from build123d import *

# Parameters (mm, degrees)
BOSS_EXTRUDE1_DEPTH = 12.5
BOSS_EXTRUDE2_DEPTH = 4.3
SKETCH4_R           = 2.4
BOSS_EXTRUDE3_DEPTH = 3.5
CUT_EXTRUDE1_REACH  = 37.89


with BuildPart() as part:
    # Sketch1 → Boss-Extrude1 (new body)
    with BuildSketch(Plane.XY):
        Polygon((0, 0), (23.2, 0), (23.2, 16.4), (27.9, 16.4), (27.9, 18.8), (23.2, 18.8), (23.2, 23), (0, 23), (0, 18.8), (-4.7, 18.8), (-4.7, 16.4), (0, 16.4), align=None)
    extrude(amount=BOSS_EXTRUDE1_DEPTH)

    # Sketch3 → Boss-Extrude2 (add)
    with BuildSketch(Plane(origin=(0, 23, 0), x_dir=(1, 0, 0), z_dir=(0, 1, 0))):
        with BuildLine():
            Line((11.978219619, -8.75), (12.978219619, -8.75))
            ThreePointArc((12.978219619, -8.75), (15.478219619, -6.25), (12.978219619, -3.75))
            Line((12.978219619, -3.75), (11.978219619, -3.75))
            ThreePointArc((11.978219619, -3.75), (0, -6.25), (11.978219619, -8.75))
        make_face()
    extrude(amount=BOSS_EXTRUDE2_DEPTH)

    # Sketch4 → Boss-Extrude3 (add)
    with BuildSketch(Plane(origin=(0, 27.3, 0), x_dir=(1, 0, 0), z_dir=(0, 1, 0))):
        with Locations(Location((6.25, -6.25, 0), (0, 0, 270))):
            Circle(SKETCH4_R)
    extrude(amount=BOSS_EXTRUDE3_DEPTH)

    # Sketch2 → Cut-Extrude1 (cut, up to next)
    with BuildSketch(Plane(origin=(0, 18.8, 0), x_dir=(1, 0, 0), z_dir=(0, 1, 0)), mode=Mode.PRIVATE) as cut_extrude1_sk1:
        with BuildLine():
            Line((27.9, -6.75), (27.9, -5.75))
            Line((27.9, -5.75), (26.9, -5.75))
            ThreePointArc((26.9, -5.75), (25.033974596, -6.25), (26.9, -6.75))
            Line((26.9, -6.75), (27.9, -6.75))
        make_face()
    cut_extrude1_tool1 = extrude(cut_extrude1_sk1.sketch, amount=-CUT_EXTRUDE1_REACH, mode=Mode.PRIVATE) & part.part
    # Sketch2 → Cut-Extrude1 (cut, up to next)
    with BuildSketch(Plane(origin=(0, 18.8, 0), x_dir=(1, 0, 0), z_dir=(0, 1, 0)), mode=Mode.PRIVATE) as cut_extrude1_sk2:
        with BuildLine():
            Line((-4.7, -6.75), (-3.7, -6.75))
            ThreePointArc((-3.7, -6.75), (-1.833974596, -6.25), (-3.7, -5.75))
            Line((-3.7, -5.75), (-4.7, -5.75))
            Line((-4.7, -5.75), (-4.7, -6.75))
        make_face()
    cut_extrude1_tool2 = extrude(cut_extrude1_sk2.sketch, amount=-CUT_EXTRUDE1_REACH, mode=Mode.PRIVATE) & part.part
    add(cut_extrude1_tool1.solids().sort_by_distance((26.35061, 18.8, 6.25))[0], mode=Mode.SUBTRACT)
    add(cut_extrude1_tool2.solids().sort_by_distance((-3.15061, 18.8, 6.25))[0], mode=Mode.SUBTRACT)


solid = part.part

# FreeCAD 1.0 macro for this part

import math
import FreeCAD as App
import Part
import Sketcher
from FreeCAD import Vector


def add_polygon(sketch, points):
    """Adds a closed chain of lines whose ends are joined by coincident constraints."""
    first, n = sketch.GeometryCount, len(points)
    for a, b in zip(points, points[1:] + points[:1]):
        sketch.addGeometry(Part.LineSegment(App.Vector(*a, 0), App.Vector(*b, 0)), False)
    for i in range(n):
        sketch.addConstraint(Sketcher.Constraint("Coincident", first + i, 2, first + (i + 1) % n, 1))

doc = App.newDocument("Part")
params = doc.addObject("Spreadsheet::Sheet", "Params")
for row, (alias, value) in enumerate([
    ("sketch1_width", "23.2 mm"),
    ("sketch1_width2", "4.7 mm"),
    ("sketch1_height", "16.4 mm"),
    ("sketch1_height2", "2.4 mm"),
    ("sketch1_height3", "4.2 mm"),
    ("pad1_length", "12.5 mm"),
    ("sketch2_radius", "2.5 mm"),
    ("sketch2_width", "1 mm"),
    ("sketch2_radius2", "6.25 mm"),
    ("pad2_length", "4.3 mm"),
    ("sketch3_diameter", "4.8 mm"),
    ("pad3_length", "3.5 mm"),
    ("sketch4_radius", "1 mm"),
    ("sketch4_width", "1 mm"),
    ("sketch5_radius", "1 mm"),
    ("sketch5_width", "1 mm"),
], start=1):
    params.set(f"A{row}", alias)
    params.set(f"B{row}", "=" + value)
    params.setAlias(f"B{row}", alias)

body = doc.addObject("PartDesign::Body", "Body")

sketch1 = body.newObject("Sketcher::SketchObject", "Sketch")
sketch1.AttachmentSupport = (doc.getObject("XY_Plane"), [""])
sketch1.MapMode = "FlatFace"
add_polygon(sketch1, [(0, 0), (23.2, 0), (23.2, 16.4), (27.9, 16.4), (27.9, 18.8), (23.2, 18.8), (23.2, 23), (0, 23), (0, 18.8), (-4.7, 18.8), (-4.7, 16.4), (0, 16.4)])
sketch1.addConstraint(Sketcher.Constraint("Horizontal", 0))
sketch1.addConstraint(Sketcher.Constraint("Vertical", 1))
sketch1.addConstraint(Sketcher.Constraint("Horizontal", 2))
sketch1.addConstraint(Sketcher.Constraint("Vertical", 3))
sketch1.addConstraint(Sketcher.Constraint("Horizontal", 4))
sketch1.addConstraint(Sketcher.Constraint("Vertical", 5))
sketch1.addConstraint(Sketcher.Constraint("Horizontal", 6))
sketch1.addConstraint(Sketcher.Constraint("Vertical", 7))
sketch1.addConstraint(Sketcher.Constraint("Horizontal", 8))
sketch1.addConstraint(Sketcher.Constraint("Vertical", 9))
sketch1.addConstraint(Sketcher.Constraint("Horizontal", 10))
sketch1.addConstraint(Sketcher.Constraint("Vertical", 11))
sketch1.addConstraint(Sketcher.Constraint("Coincident", 11, 2, -1, 1))
sketch1.addConstraint(Sketcher.Constraint("PointOnObject", 6, 2, -2))
sketch1.addConstraint(Sketcher.Constraint("Horizontal", 4, 2, 7, 2))
sketch1.addConstraint(Sketcher.Constraint("Horizontal", 2, 2, 9, 2))
sketch1.addConstraint(Sketcher.Constraint("Vertical", 1, 2, 4, 2))
sketch1.addConstraint(Sketcher.Constraint("Equal", 4, 8))
sketch1.addConstraint(Sketcher.Constraint("DistanceX", 0, 1, 0, 2, 23.2))
sketch1.addConstraint(Sketcher.Constraint("DistanceX", 2, 1, 2, 2, 4.7))
sketch1.addConstraint(Sketcher.Constraint("DistanceY", 1, 1, 1, 2, 16.4))
sketch1.addConstraint(Sketcher.Constraint("DistanceY", 3, 1, 3, 2, 2.4))
sketch1.addConstraint(Sketcher.Constraint("DistanceY", 5, 1, 5, 2, 4.2))
sketch1.setExpression("Constraints[30]", "Params.sketch1_width")
sketch1.setExpression("Constraints[31]", "Params.sketch1_width2")
sketch1.setExpression("Constraints[32]", "Params.sketch1_height")
sketch1.setExpression("Constraints[33]", "Params.sketch1_height2")
sketch1.setExpression("Constraints[34]", "Params.sketch1_height3")
pad1 = body.newObject("PartDesign::Pad", "Pad")
pad1.Profile = sketch1
pad1.setExpression("Length", "Params.pad1_length")

sketch2 = body.newObject("Sketcher::SketchObject", "Sketch001")
sketch2.AttachmentSupport = (doc.getObject("XZ_Plane"), [""])
sketch2.MapMode = "FlatFace"
sketch2.AttachmentOffset = App.Placement(Vector(0, 0, -23), App.Rotation())
sketch2.addGeometry(Part.LineSegment(Vector(12, 8.8, 0), Vector(13, 8.8, 0)), False)
sketch2.addGeometry(Part.ArcOfCircle(Part.Circle(Vector(13, 6.2, 0), Vector(0, 0, 1), 2.5), math.radians(-90), math.radians(90)), False)
sketch2.addGeometry(Part.LineSegment(Vector(13, 3.8, 0), Vector(12, 3.8, 0)), False)
sketch2.addGeometry(Part.ArcOfCircle(Part.Circle(Vector(6.2, 6.2, 0), Vector(0, 0, 1), 6.2), math.radians(24), math.radians(336)), False)
sketch2.addConstraint(Sketcher.Constraint("Tangent", 0, 2, 1, 2))
sketch2.addConstraint(Sketcher.Constraint("Tangent", 1, 1, 2, 1))
sketch2.addConstraint(Sketcher.Constraint("Coincident", 2, 2, 3, 2))
sketch2.addConstraint(Sketcher.Constraint("Coincident", 3, 1, 0, 1))
sketch2.addConstraint(Sketcher.Constraint("Horizontal", 0))
sketch2.addConstraint(Sketcher.Constraint("Horizontal", 2))
sketch2.addConstraint(Sketcher.Constraint("Horizontal", 1, 3, 3, 3))
sketch2.addConstraint(Sketcher.Constraint("Radius", 1, 2.5))
sketch2.addConstraint(Sketcher.Constraint("DistanceX", 0, 1, 0, 2, 1.0))
sketch2.addConstraint(Sketcher.Constraint("Radius", 3, 6.25))
sketch2.addConstraint(Sketcher.Constraint("DistanceY", -1, 1, 1, 3, 6.25))
sketch2.addConstraint(Sketcher.Constraint("DistanceX", -1, 1, 3, 3, 6.25))
sketch2.setExpression("Constraints[7]", "Params.sketch2_radius")
sketch2.setExpression("Constraints[8]", "Params.sketch2_width")
sketch2.setExpression("Constraints[9]", "Params.sketch2_radius2")
pad2 = body.newObject("PartDesign::Pad", "Pad001")
pad2.Profile = sketch2
pad2.setExpression("Length", "Params.pad2_length")
pad2.Reversed = True

sketch3 = body.newObject("Sketcher::SketchObject", "Sketch002")
sketch3.AttachmentSupport = (doc.getObject("XZ_Plane"), [""])
sketch3.MapMode = "FlatFace"
sketch3.AttachmentOffset = App.Placement(Vector(0, 0, -27.3), App.Rotation())
sketch3.addGeometry(Part.Circle(Vector(6.2, 6.2, 0), Vector(0, 0, 1), 2.4), False)
sketch3.addConstraint(Sketcher.Constraint("Diameter", 0, 4.8))
sketch3.addConstraint(Sketcher.Constraint("DistanceX", -1, 1, 0, 3, 6.25))
sketch3.addConstraint(Sketcher.Constraint("DistanceY", -1, 1, 0, 3, 6.25))
sketch3.setExpression("Constraints[0]", "Params.sketch3_diameter")
pad3 = body.newObject("PartDesign::Pad", "Pad002")
pad3.Profile = sketch3
pad3.setExpression("Length", "Params.pad3_length")
pad3.Reversed = True

sketch4 = body.newObject("Sketcher::SketchObject", "Sketch003")
sketch4.AttachmentSupport = (doc.getObject("XZ_Plane"), [""])
sketch4.MapMode = "FlatFace"
sketch4.AttachmentOffset = App.Placement(Vector(0, 0, -18.8), App.Rotation())
sketch4.addGeometry(Part.LineSegment(Vector(27.9, 6.8, 0), Vector(27.9, 5.8, 0)), False)
sketch4.addGeometry(Part.LineSegment(Vector(27.9, 5.8, 0), Vector(26.9, 5.8, 0)), False)
sketch4.addGeometry(Part.ArcOfCircle(Part.Circle(Vector(26, 6.2, 0), Vector(0, 0, 1), 1), math.radians(30), math.radians(330)), False)
sketch4.addGeometry(Part.LineSegment(Vector(26.9, 6.8, 0), Vector(27.9, 6.8, 0)), False)
sketch4.addConstraint(Sketcher.Constraint("Coincident", 0, 2, 1, 1))
sketch4.addConstraint(Sketcher.Constraint("Coincident", 1, 2, 2, 2))
sketch4.addConstraint(Sketcher.Constraint("Coincident", 2, 1, 3, 1))
sketch4.addConstraint(Sketcher.Constraint("Coincident", 3, 2, 0, 1))
sketch4.addConstraint(Sketcher.Constraint("Vertical", 0))
sketch4.addConstraint(Sketcher.Constraint("Horizontal", 1))
sketch4.addConstraint(Sketcher.Constraint("Horizontal", 3))
sketch4.addConstraint(Sketcher.Constraint("Vertical", 1, 2, 2, 1))
sketch4.addConstraint(Sketcher.Constraint("Equal", 3, 0))
sketch4.addConstraint(Sketcher.Constraint("Radius", 2, 1.0))
sketch4.addConstraint(Sketcher.Constraint("DistanceX", 1, 2, 1, 1, 1.0))
sketch4.addConstraint(Sketcher.Constraint("DistanceX", -1, 1, 0, 2, 27.9))
sketch4.addConstraint(Sketcher.Constraint("DistanceY", -1, 1, 2, 3, 6.25))
sketch4.setExpression("Constraints[9]", "Params.sketch4_radius")
sketch4.setExpression("Constraints[10]", "Params.sketch4_width")
pocket1 = body.newObject("PartDesign::Pocket", "Pocket")
pocket1.Profile = sketch4
pocket1.Type = "UpToFirst"
pocket1.Reversed = True

sketch5 = body.newObject("Sketcher::SketchObject", "Sketch004")
sketch5.AttachmentSupport = (doc.getObject("XZ_Plane"), [""])
sketch5.MapMode = "FlatFace"
sketch5.AttachmentOffset = App.Placement(Vector(0, 0, -18.8), App.Rotation())
sketch5.addGeometry(Part.LineSegment(Vector(-4.7, 6.8, 0), Vector(-3.7, 6.8, 0)), False)
sketch5.addGeometry(Part.ArcOfCircle(Part.Circle(Vector(-2.8, 6.2, 0), Vector(0, 0, 1), 1), math.radians(-150), math.radians(150)), False)
sketch5.addGeometry(Part.LineSegment(Vector(-3.7, 5.8, 0), Vector(-4.7, 5.8, 0)), False)
sketch5.addGeometry(Part.LineSegment(Vector(-4.7, 5.8, 0), Vector(-4.7, 6.8, 0)), False)
sketch5.addConstraint(Sketcher.Constraint("Coincident", 0, 2, 1, 2))
sketch5.addConstraint(Sketcher.Constraint("Coincident", 1, 1, 2, 1))
sketch5.addConstraint(Sketcher.Constraint("Coincident", 2, 2, 3, 1))
sketch5.addConstraint(Sketcher.Constraint("Coincident", 3, 2, 0, 1))
sketch5.addConstraint(Sketcher.Constraint("Horizontal", 0))
sketch5.addConstraint(Sketcher.Constraint("Horizontal", 2))
sketch5.addConstraint(Sketcher.Constraint("Vertical", 3))
sketch5.addConstraint(Sketcher.Constraint("Vertical", 0, 2, 1, 1))
sketch5.addConstraint(Sketcher.Constraint("Equal", 2, 3))
sketch5.addConstraint(Sketcher.Constraint("Radius", 1, 1.0))
sketch5.addConstraint(Sketcher.Constraint("DistanceX", 0, 1, 0, 2, 1.0))
sketch5.addConstraint(Sketcher.Constraint("DistanceX", 0, 2, -1, 1, 3.7))
sketch5.addConstraint(Sketcher.Constraint("DistanceY", -1, 1, 1, 3, 6.25))
sketch5.setExpression("Constraints[9]", "Params.sketch5_radius")
sketch5.setExpression("Constraints[10]", "Params.sketch5_width")
pocket2 = body.newObject("PartDesign::Pocket", "Pocket001")
pocket2.Profile = sketch5
pocket2.Type = "UpToFirst"
pocket2.Reversed = True

doc.recompute()
